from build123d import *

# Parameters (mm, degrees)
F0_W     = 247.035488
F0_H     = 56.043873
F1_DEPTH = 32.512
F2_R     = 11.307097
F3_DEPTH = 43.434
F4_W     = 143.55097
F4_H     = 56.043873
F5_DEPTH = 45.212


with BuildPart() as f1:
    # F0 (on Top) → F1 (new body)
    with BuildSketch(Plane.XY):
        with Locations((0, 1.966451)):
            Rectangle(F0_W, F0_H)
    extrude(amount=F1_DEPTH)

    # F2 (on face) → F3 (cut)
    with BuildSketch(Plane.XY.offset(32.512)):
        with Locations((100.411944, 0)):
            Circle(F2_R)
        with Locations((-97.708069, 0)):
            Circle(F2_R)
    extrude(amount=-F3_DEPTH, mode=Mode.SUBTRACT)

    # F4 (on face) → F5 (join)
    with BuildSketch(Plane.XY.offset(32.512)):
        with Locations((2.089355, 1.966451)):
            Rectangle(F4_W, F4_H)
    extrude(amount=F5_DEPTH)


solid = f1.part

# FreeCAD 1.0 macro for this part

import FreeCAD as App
import Part
import Sketcher

V = App.Vector
Q = App.Units.Quantity

doc = App.newDocument("Part")
body = doc.addObject("PartDesign::Body", "Body")

sketch1 = doc.addObject("Sketcher::SketchObject", "Sketch")
body.addObject(sketch1)
sketch1.AttachmentSupport = (doc.XY_Plane, [""])
sketch1.MapMode = "FlatFace"
sketch1.addGeometry([
    Part.LineSegment(V(-123.517744, 29.988388, 0), V(-123.517744, -26.055485, 0)),
    Part.LineSegment(V(-123.517744, -26.055485, 0), V(123.517744, -26.055485, 0)),
    Part.LineSegment(V(123.517744, -26.055485, 0), V(123.517744, 29.988388, 0)),
    Part.LineSegment(V(123.517744, 29.988388, 0), V(-123.517744, 29.988388, 0)),
], False)
sketch1.addConstraint([
    Sketcher.Constraint("Coincident", 0, 2, 1, 1),
    Sketcher.Constraint("Coincident", 1, 2, 2, 1),
    Sketcher.Constraint("Coincident", 2, 2, 3, 1),
    Sketcher.Constraint("Coincident", 3, 2, 0, 1),
    Sketcher.Constraint("Vertical", 0),
    Sketcher.Constraint("Horizontal", 1),
    Sketcher.Constraint("Vertical", 2),
    Sketcher.Constraint("Horizontal", 3),
    Sketcher.Constraint("DistanceX", 1, 1, 1, 2, 247.035488),
    Sketcher.Constraint("DistanceY", 0, 2, 0, 1, 56.043873),
    Sketcher.Constraint("DistanceX", 0, 2, -1, 1, 123.517744),
    Sketcher.Constraint("DistanceY", 0, 2, -1, 1, 26.055485),
])
pad1 = doc.addObject("PartDesign::Pad", "Pad")
body.addObject(pad1)
pad1.Profile = sketch1
pad1.Length = Q("1.28 in")

sketch2 = doc.addObject("Sketcher::SketchObject", "Sketch001")
body.addObject(sketch2)
sketch2.AttachmentSupport = (doc.XY_Plane, [""])
sketch2.MapMode = "FlatFace"
sketch2.AttachmentOffset = App.Placement(V(0, 0, 1.28 * 25.4), App.Rotation())
sketch2.addGeometry([
    Part.Circle(V(100.411944, 0, 0), V(0, 0, 1), 11.307097),
    Part.Circle(V(-97.708069, 0, 0), V(0, 0, 1), 11.307097),
], False)
sketch2.addConstraint([
    Sketcher.Constraint("Equal", 0, 1),
    Sketcher.Constraint("PointOnObject", 0, 3, -1),
    Sketcher.Constraint("PointOnObject", 1, 3, -1),
    Sketcher.Constraint("Diameter", 0, 22.614194),
    Sketcher.Constraint("DistanceX", 1, 3, -1, 1, 97.708069),
    Sketcher.Constraint("DistanceX", -1, 1, 0, 3, 100.411944),
])
pocket1 = doc.addObject("PartDesign::Pocket", "Pocket")
body.addObject(pocket1)
pocket1.Profile = sketch2
pocket1.Length = Q("1.71 in")

sketch3 = doc.addObject("Sketcher::SketchObject", "Sketch002")
body.addObject(sketch3)
sketch3.AttachmentSupport = (doc.XY_Plane, [""])
sketch3.MapMode = "FlatFace"
sketch3.AttachmentOffset = App.Placement(V(0, 0, 1.28 * 25.4), App.Rotation())
sketch3.addGeometry([
    Part.LineSegment(V(-69.68613, 29.988388, 0), V(-69.68613, -26.055485, 0)),
    Part.LineSegment(V(-69.68613, -26.055485, 0), V(73.86484, -26.055485, 0)),
    Part.LineSegment(V(73.86484, -26.055485, 0), V(73.86484, 29.988388, 0)),
    Part.LineSegment(V(73.86484, 29.988388, 0), V(-69.68613, 29.988388, 0)),
], False)
sketch3.addConstraint([
    Sketcher.Constraint("Coincident", 0, 2, 1, 1),
    Sketcher.Constraint("Coincident", 1, 2, 2, 1),
    Sketcher.Constraint("Coincident", 2, 2, 3, 1),
    Sketcher.Constraint("Coincident", 3, 2, 0, 1),
    Sketcher.Constraint("Vertical", 0),
    Sketcher.Constraint("Horizontal", 1),
    Sketcher.Constraint("Vertical", 2),
    Sketcher.Constraint("Horizontal", 3),
    Sketcher.Constraint("DistanceX", 1, 1, 1, 2, 143.55097),
    Sketcher.Constraint("DistanceY", 0, 2, 0, 1, 56.043873),
    Sketcher.Constraint("DistanceX", 0, 2, -1, 1, 69.68613),
    Sketcher.Constraint("DistanceY", 0, 2, -1, 1, 26.055485),
])
pad2 = doc.addObject("PartDesign::Pad", "Pad001")
body.addObject(pad2)
pad2.Profile = sketch3
pad2.Length = Q("1.78 in")

doc.recompute()
